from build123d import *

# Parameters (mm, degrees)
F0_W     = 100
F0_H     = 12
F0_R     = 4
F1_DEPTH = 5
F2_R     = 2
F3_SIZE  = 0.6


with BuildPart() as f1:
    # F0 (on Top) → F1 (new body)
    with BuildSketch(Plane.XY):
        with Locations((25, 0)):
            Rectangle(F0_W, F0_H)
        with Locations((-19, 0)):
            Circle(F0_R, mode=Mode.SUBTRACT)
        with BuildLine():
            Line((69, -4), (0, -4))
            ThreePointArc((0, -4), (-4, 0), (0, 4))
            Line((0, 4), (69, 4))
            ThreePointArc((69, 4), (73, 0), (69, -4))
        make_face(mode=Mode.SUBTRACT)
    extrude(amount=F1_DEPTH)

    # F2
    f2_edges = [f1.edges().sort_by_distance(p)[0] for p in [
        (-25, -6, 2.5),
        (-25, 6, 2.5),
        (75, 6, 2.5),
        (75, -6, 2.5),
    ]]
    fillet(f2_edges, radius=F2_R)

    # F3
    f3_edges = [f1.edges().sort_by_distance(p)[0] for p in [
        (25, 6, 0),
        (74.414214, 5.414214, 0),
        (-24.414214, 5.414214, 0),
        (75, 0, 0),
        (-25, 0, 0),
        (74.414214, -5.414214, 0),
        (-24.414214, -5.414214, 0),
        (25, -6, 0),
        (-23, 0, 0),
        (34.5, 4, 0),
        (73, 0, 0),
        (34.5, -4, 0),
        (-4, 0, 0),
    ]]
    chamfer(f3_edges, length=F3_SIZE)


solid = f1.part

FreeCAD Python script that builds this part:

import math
import FreeCAD as App
import Part
import Sketcher
from FreeCAD import Vector
Q = App.Units.Quantity


def edges_at(feature, points):
    """Names of the edges that pass closest to the given points."""
    edges = feature.Shape.Edges
    near = lambda p: min(range(len(edges)), key=lambda i: edges[i].distToShape(Part.Vertex(*p))[0])
    return sorted({f"Edge{near(p) + 1}" for p in points})


def add_polygon(sketch, points):
    """Adds a closed chain of lines whose ends are joined by coincident constraints."""
    first, n = sketch.GeometryCount, len(points)
    for a, b in zip(points, points[1:] + points[:1]):
        sketch.addGeometry(Part.LineSegment(App.Vector(*a, 0), App.Vector(*b, 0)), False)
    for i in range(n):
        sketch.addConstraint(Sketcher.Constraint("Coincident", first + i, 2, first + (i + 1) % n, 1))

doc = App.newDocument("Part")
body = doc.addObject("PartDesign::Body", "Body")

# Sketch on XY plane
sketch1 = body.newObject("Sketcher::SketchObject", "Sketch")
sketch1.AttachmentSupport = (doc.getObject("XY_Plane"), [""])
sketch1.MapMode = "FlatFace"
add_polygon(sketch1, [(-25, 6), (-25, -6), (75, -6), (75, 6)])  # lines 0-3
sketch1.addGeometry(Part.Circle(Vector(-19, 0, 0), Vector(0, 0, 1), 4), False)  # 4
sketch1.addGeometry(Part.ArcOfCircle(Part.Circle(Vector(69, 0, 0), Vector(0, 0, 1), 4), math.radians(-90), math.radians(90)), False)  # 5
sketch1.addGeometry(Part.LineSegment(Vector(69, -4, 0), Vector(0, -4, 0)), False)  # 6
sketch1.addGeometry(Part.ArcOfCircle(Part.Circle(Vector(0, 0, 0), Vector(0, 0, 1), 4), math.radians(90), math.radians(270)), False)  # 7
sketch1.addGeometry(Part.LineSegment(Vector(0, 4, 0), Vector(69, 4, 0)), False)  # 8
sketch1.addConstraint([
    Sketcher.Constraint("Tangent", 5, 1, 6, 1),
    Sketcher.Constraint("Tangent", 6, 2, 7, 2),
    Sketcher.Constraint("Tangent", 7, 1, 8, 1),
    Sketcher.Constraint("Tangent", 8, 2, 5, 2),
    Sketcher.Constraint("Vertical", 0),
    Sketcher.Constraint("Horizontal", 1),
    Sketcher.Constraint("Vertical", 2),
    Sketcher.Constraint("Horizontal", 3),
    Sketcher.Constraint("Horizontal", 6),
    Sketcher.Constraint("Horizontal", 8),
    Sketcher.Constraint("Coincident", 7, 3, -1, 1),
    Sketcher.Constraint("Equal", 4, 5),
    Sketcher.Constraint("PointOnObject", 4, 3, -1),
    Sketcher.Constraint("Diameter", 4, Q("8 mm")),
    Sketcher.Constraint("DistanceX", 1, 1, 1, 2, Q("100 mm")),
    Sketcher.Constraint("DistanceX", 6, 2, 6, 1, Q("69 mm")),
    Sketcher.Constraint("DistanceY", 0, 2, 0, 1, Q("12 mm")),
    Sketcher.Constraint("DistanceX", 4, 3, -1, 1, Q("19 mm")),
    Sketcher.Constraint("DistanceX", 0, 2, -1, 1, Q("25 mm")),
    Sketcher.Constraint("DistanceY", 0, 2, -1, 1, Q("6 mm")),
])
pad1 = body.newObject("PartDesign::Pad", "Pad")
pad1.Profile = sketch1
pad1.Length = 5
doc.recompute()

fillet = body.newObject("PartDesign::Fillet", "Fillet")
fillet.Base = (pad1, edges_at(pad1, [
    (-25, -6, 2.5),
    (-25, 6, 2.5),
    (75, 6, 2.5),
    (75, -6, 2.5),
]))
fillet.Radius = 2
doc.recompute()

chamfer = body.newObject("PartDesign::Chamfer", "Chamfer")
chamfer.Base = (fillet, edges_at(fillet, [
    (25, 6, 0),
    (74.414, 5.414, 0),
    (-24.414, 5.414, 0),
    (75, 0, 0),
    (-25, 0, 0),
    (74.414, -5.414, 0),
    (-24.414, -5.414, 0),
    (25, -6, 0),
    (-23, 0, 0),
    (34.5, 4, 0),
    (73, 0, 0),
    (34.5, -4, 0),
    (-4, 0, 0),
]))
chamfer.Size = 0.6

doc.recompute()
